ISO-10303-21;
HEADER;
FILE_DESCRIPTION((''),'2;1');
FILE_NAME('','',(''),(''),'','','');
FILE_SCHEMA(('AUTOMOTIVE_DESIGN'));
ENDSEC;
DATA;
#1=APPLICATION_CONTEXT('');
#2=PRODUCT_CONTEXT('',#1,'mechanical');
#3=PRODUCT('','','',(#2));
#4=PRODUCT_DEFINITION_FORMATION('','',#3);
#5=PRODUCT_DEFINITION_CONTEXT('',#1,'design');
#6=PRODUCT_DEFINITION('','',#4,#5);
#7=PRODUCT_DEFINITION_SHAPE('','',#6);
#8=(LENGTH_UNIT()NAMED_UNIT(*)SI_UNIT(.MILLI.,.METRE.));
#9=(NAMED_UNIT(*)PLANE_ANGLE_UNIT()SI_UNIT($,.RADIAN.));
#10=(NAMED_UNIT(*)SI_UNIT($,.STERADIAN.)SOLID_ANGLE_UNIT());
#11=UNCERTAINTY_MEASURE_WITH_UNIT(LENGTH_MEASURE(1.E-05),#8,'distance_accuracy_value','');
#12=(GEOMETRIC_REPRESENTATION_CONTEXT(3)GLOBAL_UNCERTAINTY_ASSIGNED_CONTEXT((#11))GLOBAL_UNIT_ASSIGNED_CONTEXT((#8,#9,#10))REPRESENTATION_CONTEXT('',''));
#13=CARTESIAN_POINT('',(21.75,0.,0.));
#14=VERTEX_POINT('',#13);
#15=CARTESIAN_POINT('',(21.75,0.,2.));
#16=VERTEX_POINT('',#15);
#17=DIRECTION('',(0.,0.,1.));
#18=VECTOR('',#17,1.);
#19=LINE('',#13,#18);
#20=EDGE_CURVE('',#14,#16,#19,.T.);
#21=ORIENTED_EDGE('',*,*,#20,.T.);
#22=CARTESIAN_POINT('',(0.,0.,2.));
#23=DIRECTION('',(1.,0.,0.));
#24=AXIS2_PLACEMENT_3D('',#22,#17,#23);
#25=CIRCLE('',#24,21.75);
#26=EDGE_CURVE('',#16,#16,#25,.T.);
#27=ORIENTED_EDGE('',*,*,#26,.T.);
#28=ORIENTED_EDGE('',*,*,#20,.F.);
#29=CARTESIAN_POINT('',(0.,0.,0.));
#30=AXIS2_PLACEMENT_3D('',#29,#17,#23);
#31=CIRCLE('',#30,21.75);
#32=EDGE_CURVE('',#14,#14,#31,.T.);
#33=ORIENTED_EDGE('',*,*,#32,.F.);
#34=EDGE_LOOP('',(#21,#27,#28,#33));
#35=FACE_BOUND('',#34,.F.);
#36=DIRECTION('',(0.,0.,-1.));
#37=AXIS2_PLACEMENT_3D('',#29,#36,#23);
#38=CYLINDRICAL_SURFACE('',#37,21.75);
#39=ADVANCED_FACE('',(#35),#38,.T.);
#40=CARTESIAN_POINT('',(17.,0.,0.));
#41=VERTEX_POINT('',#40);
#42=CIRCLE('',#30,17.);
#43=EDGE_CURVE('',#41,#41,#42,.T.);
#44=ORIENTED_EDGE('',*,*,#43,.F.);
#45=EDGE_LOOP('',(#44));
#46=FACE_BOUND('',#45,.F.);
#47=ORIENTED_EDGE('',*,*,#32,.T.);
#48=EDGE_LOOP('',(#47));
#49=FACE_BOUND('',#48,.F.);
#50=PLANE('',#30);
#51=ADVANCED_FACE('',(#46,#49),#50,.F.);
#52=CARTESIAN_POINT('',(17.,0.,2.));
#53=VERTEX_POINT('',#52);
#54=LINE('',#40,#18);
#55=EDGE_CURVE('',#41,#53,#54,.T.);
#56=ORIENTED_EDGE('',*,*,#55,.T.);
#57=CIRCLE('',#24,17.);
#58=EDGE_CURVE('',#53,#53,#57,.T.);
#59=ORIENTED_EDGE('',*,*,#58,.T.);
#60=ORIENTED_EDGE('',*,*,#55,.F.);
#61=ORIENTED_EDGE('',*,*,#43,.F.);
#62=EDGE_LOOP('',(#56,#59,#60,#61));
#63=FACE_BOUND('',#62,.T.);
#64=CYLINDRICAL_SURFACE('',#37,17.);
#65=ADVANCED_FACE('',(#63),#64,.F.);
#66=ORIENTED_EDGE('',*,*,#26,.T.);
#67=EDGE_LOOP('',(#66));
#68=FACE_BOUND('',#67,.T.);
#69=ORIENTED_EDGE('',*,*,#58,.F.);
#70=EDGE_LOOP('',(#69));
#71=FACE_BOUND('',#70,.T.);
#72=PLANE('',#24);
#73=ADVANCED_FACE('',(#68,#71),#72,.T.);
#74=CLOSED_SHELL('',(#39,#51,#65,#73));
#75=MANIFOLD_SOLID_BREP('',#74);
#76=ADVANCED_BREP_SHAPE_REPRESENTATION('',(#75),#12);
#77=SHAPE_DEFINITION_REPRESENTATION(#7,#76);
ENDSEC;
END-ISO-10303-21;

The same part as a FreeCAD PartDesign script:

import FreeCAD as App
import Part
import Sketcher
from FreeCAD import Vector

doc = App.newDocument("Part")
body = doc.addObject("PartDesign::Body", "Body")

# Sketch on XY plane
sketch1 = body.newObject("Sketcher::SketchObject", "Sketch")
sketch1.AttachmentSupport = (doc.getObject("XY_Plane"), [""])
sketch1.MapMode = "FlatFace"
sketch1.addGeometry([
    Part.Circle(Vector(0, 0, 0), Vector(0, 0, 1), 22),
    Part.Circle(Vector(0, 0, 0), Vector(0, 0, 1), 17),
], False)
sketch1.addConstraint([
    Sketcher.Constraint("Coincident", 0, 3, -1, 1),
    Sketcher.Constraint("Coincident", 1, 3, -1, 1),
    Sketcher.Constraint("Diameter", 1, 34.0),
    Sketcher.Constraint("Diameter", 0, 43.5),
])
pad1 = body.newObject("PartDesign::Pad", "Pad")
pad1.Profile = sketch1
pad1.Length = 2

doc.recompute()
